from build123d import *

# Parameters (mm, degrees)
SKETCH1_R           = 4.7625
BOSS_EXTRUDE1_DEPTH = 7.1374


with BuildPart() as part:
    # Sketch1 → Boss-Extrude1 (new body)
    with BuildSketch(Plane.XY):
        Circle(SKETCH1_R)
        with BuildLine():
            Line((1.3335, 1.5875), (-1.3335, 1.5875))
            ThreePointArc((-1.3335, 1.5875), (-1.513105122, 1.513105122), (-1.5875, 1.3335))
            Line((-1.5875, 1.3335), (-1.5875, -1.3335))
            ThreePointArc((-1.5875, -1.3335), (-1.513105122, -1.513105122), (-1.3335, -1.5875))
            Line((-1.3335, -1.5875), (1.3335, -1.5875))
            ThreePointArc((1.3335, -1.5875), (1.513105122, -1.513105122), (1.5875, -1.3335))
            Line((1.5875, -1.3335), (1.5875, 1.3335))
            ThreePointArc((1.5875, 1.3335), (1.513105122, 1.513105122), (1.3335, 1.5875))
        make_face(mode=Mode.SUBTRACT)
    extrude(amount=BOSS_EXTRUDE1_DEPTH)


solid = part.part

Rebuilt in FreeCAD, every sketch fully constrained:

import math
import FreeCAD as App
import Part
import Sketcher

V = App.Vector
Q = App.Units.Quantity

doc = App.newDocument("Part")
body = doc.addObject("PartDesign::Body", "Body")

# Sketch on XY plane
sketch1 = body.newObject("Sketcher::SketchObject", "Sketch")
sketch1.AttachmentSupport = (doc.getObject("XY_Plane"), [""])
sketch1.MapMode = "FlatFace"
sketch1.addGeometry([
    Part.Circle(V(0, 0, 0), V(0, 0, 1), 4.7625),  # 0
    Part.LineSegment(V(-1.3335, 1.5875, 0), V(1.3335, 1.5875, 0)),  # 1
    Part.ArcOfCircle(Part.Circle(V(1.3335, 1.3335, 0), V(0, 0, 1), 0.254), math.radians(0), math.radians(90)),  # 2
    Part.LineSegment(V(1.5875, 1.3335, 0), V(1.5875, -1.3335, 0)),  # 3
    Part.ArcOfCircle(Part.Circle(V(1.3335, -1.3335, 0), V(0, 0, 1), 0.254), math.radians(-90), math.radians(0)),  # 4
    Part.LineSegment(V(1.3335, -1.5875, 0), V(-1.3335, -1.5875, 0)),  # 5
    Part.ArcOfCircle(Part.Circle(V(-1.3335, -1.3335, 0), V(0, 0, 1), 0.254), math.radians(-180), math.radians(-90)),  # 6
    Part.LineSegment(V(-1.5875, -1.3335, 0), V(-1.5875, 1.3335, 0)),  # 7
    Part.ArcOfCircle(Part.Circle(V(-1.3335, 1.3335, 0), V(0, 0, 1), 0.254), math.radians(90), math.radians(180)),  # 8
], False)
sketch1.addConstraint([
    Sketcher.Constraint("Tangent", 1, 2, 2, 2),
    Sketcher.Constraint("Tangent", 2, 1, 3, 1),
    Sketcher.Constraint("Tangent", 3, 2, 4, 2),
    Sketcher.Constraint("Tangent", 4, 1, 5, 1),
    Sketcher.Constraint("Tangent", 5, 2, 6, 2),
    Sketcher.Constraint("Tangent", 6, 1, 7, 1),
    Sketcher.Constraint("Tangent", 7, 2, 8, 2),
    Sketcher.Constraint("Tangent", 8, 1, 1, 1),
    Sketcher.Constraint("Horizontal", 1),
    Sketcher.Constraint("Vertical", 3),
    Sketcher.Constraint("Horizontal", 5),
    Sketcher.Constraint("Vertical", 7),
    Sketcher.Constraint("Coincident", 0, 3, -1, 1),
    Sketcher.Constraint("Equal", 2, 4),
    Sketcher.Constraint("Equal", 4, 6),
    Sketcher.Constraint("Equal", 6, 8),
    Sketcher.Constraint("Symmetric", 2, 3, 6, 3, -1, 1),
    Sketcher.Constraint("Equal", 5, 3),
    Sketcher.Constraint("Radius", 2, Q("0.01 in")),
    Sketcher.Constraint("Diameter", 0, Q("0.375 in")),
    Sketcher.Constraint("DistanceX", 1, 1, 1, 2, Q("0.105 in")),
])
pad1 = body.newObject("PartDesign::Pad", "Pad")
pad1.Profile = sketch1
pad1.Length = Q("0.281 in")

doc.recompute()
